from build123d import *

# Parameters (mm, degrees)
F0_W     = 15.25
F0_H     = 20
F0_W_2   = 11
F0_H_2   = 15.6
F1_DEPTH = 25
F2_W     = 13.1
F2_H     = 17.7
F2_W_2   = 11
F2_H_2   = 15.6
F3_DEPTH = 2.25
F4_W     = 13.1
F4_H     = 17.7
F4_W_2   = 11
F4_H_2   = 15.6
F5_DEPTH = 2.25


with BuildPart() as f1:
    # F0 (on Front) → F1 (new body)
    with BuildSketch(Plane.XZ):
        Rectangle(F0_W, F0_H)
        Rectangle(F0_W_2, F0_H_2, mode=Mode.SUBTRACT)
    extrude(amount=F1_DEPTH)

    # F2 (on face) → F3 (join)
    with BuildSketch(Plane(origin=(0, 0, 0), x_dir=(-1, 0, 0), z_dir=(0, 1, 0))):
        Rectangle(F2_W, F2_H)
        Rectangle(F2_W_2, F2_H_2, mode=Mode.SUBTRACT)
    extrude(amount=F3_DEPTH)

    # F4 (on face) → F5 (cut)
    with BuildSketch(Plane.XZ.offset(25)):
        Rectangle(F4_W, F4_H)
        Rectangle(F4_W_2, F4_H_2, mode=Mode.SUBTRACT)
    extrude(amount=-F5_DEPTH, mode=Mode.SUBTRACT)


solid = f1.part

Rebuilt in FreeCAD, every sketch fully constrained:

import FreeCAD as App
import Part
import Sketcher


def add_polygon(sketch, points):
    """Adds a closed chain of lines whose ends are joined by coincident constraints."""
    first, n = sketch.GeometryCount, len(points)
    for a, b in zip(points, points[1:] + points[:1]):
        sketch.addGeometry(Part.LineSegment(App.Vector(*a, 0), App.Vector(*b, 0)), False)
    for i in range(n):
        sketch.addConstraint(Sketcher.Constraint("Coincident", first + i, 2, first + (i + 1) % n, 1))

doc = App.newDocument("Part")
body = doc.addObject("PartDesign::Body", "Body")

# Sketch on XZ plane
sketch1 = doc.addObject("Sketcher::SketchObject", "Sketch")
body.addObject(sketch1)
sketch1.AttachmentSupport = (doc.XZ_Plane, [""])
sketch1.MapMode = "FlatFace"
add_polygon(sketch1, [(-8, 10), (-8, -10), (8, -10), (8, 10)])  # lines 0-3
add_polygon(sketch1, [(6, -8), (-6, -8), (-6, 8), (6, 8)])  # lines 4-7
sketch1.addConstraint([
    Sketcher.Constraint("Vertical", 0),
    Sketcher.Constraint("Horizontal", 1),
    Sketcher.Constraint("Vertical", 2),
    Sketcher.Constraint("Horizontal", 3),
    Sketcher.Constraint("Horizontal", 4),
    Sketcher.Constraint("Vertical", 5),
    Sketcher.Constraint("Horizontal", 6),
    Sketcher.Constraint("Vertical", 7),
    Sketcher.Constraint("Symmetric", 0, 2, 2, 2, -1, 1),
    Sketcher.Constraint("Symmetric", 4, 2, 6, 2, -1, 1),
    Sketcher.Constraint("DistanceX", 4, 2, 4, 1, 11.0),
    Sketcher.Constraint("DistanceY", 0, 2, 0, 1, 20.0),
    Sketcher.Constraint("DistanceY", 5, 1, 5, 2, 15.6),
    Sketcher.Constraint("DistanceX", 1, 1, 1, 2, 15.25),
])
pad1 = doc.addObject("PartDesign::Pad", "Pad")
body.addObject(pad1)
pad1.Profile = sketch1
pad1.Length = 25

# Sketch on XZ plane
sketch2 = doc.addObject("Sketcher::SketchObject", "Sketch001")
body.addObject(sketch2)
sketch2.AttachmentSupport = (doc.XZ_Plane, [""])
sketch2.MapMode = "FlatFace"
add_polygon(sketch2, [(7, 9), (7, -9), (-7, -9), (-7, 9)])  # lines 0-3
add_polygon(sketch2, [(-6, -8), (6, -8), (6, 8), (-6, 8)])  # lines 4-7
sketch2.addConstraint([
    Sketcher.Constraint("Vertical", 0),
    Sketcher.Constraint("Horizontal", 1),
    Sketcher.Constraint("Vertical", 2),
    Sketcher.Constraint("Horizontal", 3),
    Sketcher.Constraint("Horizontal", 4),
    Sketcher.Constraint("Vertical", 5),
    Sketcher.Constraint("Horizontal", 6),
    Sketcher.Constraint("Vertical", 7),
    Sketcher.Constraint("Symmetric", 0, 2, 2, 2, -1, 1),
    Sketcher.Constraint("Symmetric", 4, 2, 6, 2, -1, 1),
    Sketcher.Constraint("DistanceX", 4, 1, 4, 2, 11.0),
    Sketcher.Constraint("DistanceX", 1, 2, 1, 1, 13.1),
    Sketcher.Constraint("DistanceY", 0, 2, 0, 1, 17.7),
    Sketcher.Constraint("DistanceY", 5, 1, 5, 2, 15.6),
])
pad2 = doc.addObject("PartDesign::Pad", "Pad001")
body.addObject(pad2)
pad2.Profile = sketch2
pad2.Length = 2.25
pad2.Reversed = True

# Sketch on XZ plane
sketch3 = doc.addObject("Sketcher::SketchObject", "Sketch002")
body.addObject(sketch3)
sketch3.AttachmentSupport = (doc.XZ_Plane, [""])
sketch3.MapMode = "FlatFace"
sketch3.AttachmentOffset = App.Placement(App.Vector(0, 0, 25), App.Rotation())
add_polygon(sketch3, [(-7, 9), (-7, -9), (7, -9), (7, 9)])  # lines 0-3
add_polygon(sketch3, [(6, -8), (-6, -8), (-6, 8), (6, 8)])  # lines 4-7
sketch3.addConstraint([
    Sketcher.Constraint("Vertical", 0),
    Sketcher.Constraint("Horizontal", 1),
    Sketcher.Constraint("Vertical", 2),
    Sketcher.Constraint("Horizontal", 3),
    Sketcher.Constraint("Horizontal", 4),
    Sketcher.Constraint("Vertical", 5),
    Sketcher.Constraint("Horizontal", 6),
    Sketcher.Constraint("Vertical", 7),
    Sketcher.Constraint("Symmetric", 0, 2, 2, 2, -1, 1),
    Sketcher.Constraint("Symmetric", 4, 2, 6, 2, -1, 1),
    Sketcher.Constraint("DistanceX", 4, 2, 4, 1, 11.0),
    Sketcher.Constraint("DistanceX", 1, 1, 1, 2, 13.1),
    Sketcher.Constraint("DistanceY", 0, 2, 0, 1, 17.7),
    Sketcher.Constraint("DistanceY", 5, 1, 5, 2, 15.6),
])
pocket1 = doc.addObject("PartDesign::Pocket", "Pocket")
body.addObject(pocket1)
pocket1.Profile = sketch3
pocket1.Length = 2.25

doc.recompute()
